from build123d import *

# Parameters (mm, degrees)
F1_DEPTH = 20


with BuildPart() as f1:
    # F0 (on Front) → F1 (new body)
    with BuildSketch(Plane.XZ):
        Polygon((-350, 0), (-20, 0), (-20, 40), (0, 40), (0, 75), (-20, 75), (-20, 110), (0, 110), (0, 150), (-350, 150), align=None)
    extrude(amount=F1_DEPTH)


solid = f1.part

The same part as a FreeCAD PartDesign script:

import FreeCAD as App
import Part
import Sketcher

V = App.Vector


def add_polygon(sketch, points):
    """Adds a closed chain of lines whose ends are joined by coincident constraints."""
    first, n = sketch.GeometryCount, len(points)
    for a, b in zip(points, points[1:] + points[:1]):
        sketch.addGeometry(Part.LineSegment(App.Vector(*a, 0), App.Vector(*b, 0)), False)
    for i in range(n):
        sketch.addConstraint(Sketcher.Constraint("Coincident", first + i, 2, first + (i + 1) % n, 1))

doc = App.newDocument("Part")
body = doc.addObject("PartDesign::Body", "Body")

sketch1 = body.newObject("Sketcher::SketchObject", "Sketch")
sketch1.AttachmentSupport = (doc.getObject("XZ_Plane"), [""])
sketch1.MapMode = "FlatFace"
add_polygon(sketch1, [(-350, 0), (-20, 0), (-20, 40), (0, 40), (0, 75), (-20, 75), (-20, 110), (0, 110), (0, 150), (-350, 150)])
sketch1.addConstraint(Sketcher.Constraint("Horizontal", 0))
sketch1.addConstraint(Sketcher.Constraint("Vertical", 1))
sketch1.addConstraint(Sketcher.Constraint("Horizontal", 2))
sketch1.addConstraint(Sketcher.Constraint("Vertical", 3))
sketch1.addConstraint(Sketcher.Constraint("Horizontal", 4))
sketch1.addConstraint(Sketcher.Constraint("Vertical", 5))
sketch1.addConstraint(Sketcher.Constraint("Horizontal", 6))
sketch1.addConstraint(Sketcher.Constraint("Vertical", 7))
sketch1.addConstraint(Sketcher.Constraint("Horizontal", 8))
sketch1.addConstraint(Sketcher.Constraint("Vertical", 9))
sketch1.addConstraint(Sketcher.Constraint("PointOnObject", 0, 2, -1))
sketch1.addConstraint(Sketcher.Constraint("PointOnObject", 2, 2, -2))
sketch1.addConstraint(Sketcher.Constraint("PointOnObject", 6, 2, -2))
sketch1.addConstraint(Sketcher.Constraint("Vertical", 1, 2, 4, 2))
sketch1.addConstraint(Sketcher.Constraint("Equal", 3, 5))
sketch1.addConstraint(Sketcher.Constraint("Equal", 1, 7))
sketch1.addConstraint(Sketcher.Constraint("DistanceX", 0, 1, 0, 2, 330.0))
sketch1.addConstraint(Sketcher.Constraint("DistanceX", 2, 1, 2, 2, 20.0))
sketch1.addConstraint(Sketcher.Constraint("DistanceY", 1, 1, 1, 2, 40.0))
sketch1.addConstraint(Sketcher.Constraint("DistanceY", 3, 1, 3, 2, 35.0))
pad1 = body.newObject("PartDesign::Pad", "Pad")
pad1.Profile = sketch1
pad1.Length = 20

doc.recompute()
